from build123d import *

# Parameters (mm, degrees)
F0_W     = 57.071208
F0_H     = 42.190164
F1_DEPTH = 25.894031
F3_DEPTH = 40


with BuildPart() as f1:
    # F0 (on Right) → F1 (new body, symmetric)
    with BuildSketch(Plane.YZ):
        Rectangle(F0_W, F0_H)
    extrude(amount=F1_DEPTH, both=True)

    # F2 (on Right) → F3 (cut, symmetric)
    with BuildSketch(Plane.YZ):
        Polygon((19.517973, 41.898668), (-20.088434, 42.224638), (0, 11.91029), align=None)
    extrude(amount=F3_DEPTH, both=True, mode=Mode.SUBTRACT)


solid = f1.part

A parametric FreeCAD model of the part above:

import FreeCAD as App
import Part
import Sketcher
Q = App.Units.Quantity


def add_polygon(sketch, points):
    """Adds a closed chain of lines whose ends are joined by coincident constraints."""
    first, n = sketch.GeometryCount, len(points)
    for a, b in zip(points, points[1:] + points[:1]):
        sketch.addGeometry(Part.LineSegment(App.Vector(*a, 0), App.Vector(*b, 0)), False)
    for i in range(n):
        sketch.addConstraint(Sketcher.Constraint("Coincident", first + i, 2, first + (i + 1) % n, 1))

doc = App.newDocument("Part")
body = doc.addObject("PartDesign::Body", "Body")

# Sketch on YZ plane
sketch1 = body.newObject("Sketcher::SketchObject", "Sketch")
sketch1.AttachmentSupport = (doc.getObject("YZ_Plane"), [""])
sketch1.MapMode = "FlatFace"
add_polygon(sketch1, [(-28.535604, 21.095082), (-28.535604, -21.095082), (28.535604, -21.095082), (28.535604, 21.095082)])  # lines 0-3
sketch1.addConstraint([
    Sketcher.Constraint("Vertical", 0),
    Sketcher.Constraint("Horizontal", 1),
    Sketcher.Constraint("Vertical", 2),
    Sketcher.Constraint("Horizontal", 3),
    Sketcher.Constraint("Symmetric", 0, 2, 2, 2, -1, 1),
    Sketcher.Constraint("DistanceX", 1, 1, 1, 2, Q("57.071208 mm")),
    Sketcher.Constraint("DistanceY", 0, 2, 0, 1, Q("42.190164 mm")),
])
pad1 = body.newObject("PartDesign::Pad", "Pad")
pad1.Profile = sketch1
pad1.Length = 51.788062
pad1.Midplane = True

# Sketch on YZ plane
sketch2 = body.newObject("Sketcher::SketchObject", "Sketch001")
sketch2.AttachmentSupport = (doc.getObject("YZ_Plane"), [""])
sketch2.MapMode = "FlatFace"
add_polygon(sketch2, [(19.517973, 41.898668), (-20.088434, 42.224638), (0, 11.91029)])  # lines 0-2
sketch2.addConstraint([
    Sketcher.Constraint("PointOnObject", 1, 2, -2),
    Sketcher.Constraint("Distance", 0, Q("39.607748 mm")),
    Sketcher.Constraint("Distance", 1, Q("36.36626 mm")),
    Sketcher.Constraint("Distance", 2, Q("35.780638 mm")),
    Sketcher.Constraint("DistanceY", -1, 1, 1, 2, Q("11.91029 mm")),
    Sketcher.Constraint("DistanceY", 1, 2, 2, 2, Q("29.988378 mm")),
])
pocket1 = body.newObject("PartDesign::Pocket", "Pocket")
pocket1.Profile = sketch2
pocket1.Length = 80
pocket1.Midplane = True

doc.recompute()
